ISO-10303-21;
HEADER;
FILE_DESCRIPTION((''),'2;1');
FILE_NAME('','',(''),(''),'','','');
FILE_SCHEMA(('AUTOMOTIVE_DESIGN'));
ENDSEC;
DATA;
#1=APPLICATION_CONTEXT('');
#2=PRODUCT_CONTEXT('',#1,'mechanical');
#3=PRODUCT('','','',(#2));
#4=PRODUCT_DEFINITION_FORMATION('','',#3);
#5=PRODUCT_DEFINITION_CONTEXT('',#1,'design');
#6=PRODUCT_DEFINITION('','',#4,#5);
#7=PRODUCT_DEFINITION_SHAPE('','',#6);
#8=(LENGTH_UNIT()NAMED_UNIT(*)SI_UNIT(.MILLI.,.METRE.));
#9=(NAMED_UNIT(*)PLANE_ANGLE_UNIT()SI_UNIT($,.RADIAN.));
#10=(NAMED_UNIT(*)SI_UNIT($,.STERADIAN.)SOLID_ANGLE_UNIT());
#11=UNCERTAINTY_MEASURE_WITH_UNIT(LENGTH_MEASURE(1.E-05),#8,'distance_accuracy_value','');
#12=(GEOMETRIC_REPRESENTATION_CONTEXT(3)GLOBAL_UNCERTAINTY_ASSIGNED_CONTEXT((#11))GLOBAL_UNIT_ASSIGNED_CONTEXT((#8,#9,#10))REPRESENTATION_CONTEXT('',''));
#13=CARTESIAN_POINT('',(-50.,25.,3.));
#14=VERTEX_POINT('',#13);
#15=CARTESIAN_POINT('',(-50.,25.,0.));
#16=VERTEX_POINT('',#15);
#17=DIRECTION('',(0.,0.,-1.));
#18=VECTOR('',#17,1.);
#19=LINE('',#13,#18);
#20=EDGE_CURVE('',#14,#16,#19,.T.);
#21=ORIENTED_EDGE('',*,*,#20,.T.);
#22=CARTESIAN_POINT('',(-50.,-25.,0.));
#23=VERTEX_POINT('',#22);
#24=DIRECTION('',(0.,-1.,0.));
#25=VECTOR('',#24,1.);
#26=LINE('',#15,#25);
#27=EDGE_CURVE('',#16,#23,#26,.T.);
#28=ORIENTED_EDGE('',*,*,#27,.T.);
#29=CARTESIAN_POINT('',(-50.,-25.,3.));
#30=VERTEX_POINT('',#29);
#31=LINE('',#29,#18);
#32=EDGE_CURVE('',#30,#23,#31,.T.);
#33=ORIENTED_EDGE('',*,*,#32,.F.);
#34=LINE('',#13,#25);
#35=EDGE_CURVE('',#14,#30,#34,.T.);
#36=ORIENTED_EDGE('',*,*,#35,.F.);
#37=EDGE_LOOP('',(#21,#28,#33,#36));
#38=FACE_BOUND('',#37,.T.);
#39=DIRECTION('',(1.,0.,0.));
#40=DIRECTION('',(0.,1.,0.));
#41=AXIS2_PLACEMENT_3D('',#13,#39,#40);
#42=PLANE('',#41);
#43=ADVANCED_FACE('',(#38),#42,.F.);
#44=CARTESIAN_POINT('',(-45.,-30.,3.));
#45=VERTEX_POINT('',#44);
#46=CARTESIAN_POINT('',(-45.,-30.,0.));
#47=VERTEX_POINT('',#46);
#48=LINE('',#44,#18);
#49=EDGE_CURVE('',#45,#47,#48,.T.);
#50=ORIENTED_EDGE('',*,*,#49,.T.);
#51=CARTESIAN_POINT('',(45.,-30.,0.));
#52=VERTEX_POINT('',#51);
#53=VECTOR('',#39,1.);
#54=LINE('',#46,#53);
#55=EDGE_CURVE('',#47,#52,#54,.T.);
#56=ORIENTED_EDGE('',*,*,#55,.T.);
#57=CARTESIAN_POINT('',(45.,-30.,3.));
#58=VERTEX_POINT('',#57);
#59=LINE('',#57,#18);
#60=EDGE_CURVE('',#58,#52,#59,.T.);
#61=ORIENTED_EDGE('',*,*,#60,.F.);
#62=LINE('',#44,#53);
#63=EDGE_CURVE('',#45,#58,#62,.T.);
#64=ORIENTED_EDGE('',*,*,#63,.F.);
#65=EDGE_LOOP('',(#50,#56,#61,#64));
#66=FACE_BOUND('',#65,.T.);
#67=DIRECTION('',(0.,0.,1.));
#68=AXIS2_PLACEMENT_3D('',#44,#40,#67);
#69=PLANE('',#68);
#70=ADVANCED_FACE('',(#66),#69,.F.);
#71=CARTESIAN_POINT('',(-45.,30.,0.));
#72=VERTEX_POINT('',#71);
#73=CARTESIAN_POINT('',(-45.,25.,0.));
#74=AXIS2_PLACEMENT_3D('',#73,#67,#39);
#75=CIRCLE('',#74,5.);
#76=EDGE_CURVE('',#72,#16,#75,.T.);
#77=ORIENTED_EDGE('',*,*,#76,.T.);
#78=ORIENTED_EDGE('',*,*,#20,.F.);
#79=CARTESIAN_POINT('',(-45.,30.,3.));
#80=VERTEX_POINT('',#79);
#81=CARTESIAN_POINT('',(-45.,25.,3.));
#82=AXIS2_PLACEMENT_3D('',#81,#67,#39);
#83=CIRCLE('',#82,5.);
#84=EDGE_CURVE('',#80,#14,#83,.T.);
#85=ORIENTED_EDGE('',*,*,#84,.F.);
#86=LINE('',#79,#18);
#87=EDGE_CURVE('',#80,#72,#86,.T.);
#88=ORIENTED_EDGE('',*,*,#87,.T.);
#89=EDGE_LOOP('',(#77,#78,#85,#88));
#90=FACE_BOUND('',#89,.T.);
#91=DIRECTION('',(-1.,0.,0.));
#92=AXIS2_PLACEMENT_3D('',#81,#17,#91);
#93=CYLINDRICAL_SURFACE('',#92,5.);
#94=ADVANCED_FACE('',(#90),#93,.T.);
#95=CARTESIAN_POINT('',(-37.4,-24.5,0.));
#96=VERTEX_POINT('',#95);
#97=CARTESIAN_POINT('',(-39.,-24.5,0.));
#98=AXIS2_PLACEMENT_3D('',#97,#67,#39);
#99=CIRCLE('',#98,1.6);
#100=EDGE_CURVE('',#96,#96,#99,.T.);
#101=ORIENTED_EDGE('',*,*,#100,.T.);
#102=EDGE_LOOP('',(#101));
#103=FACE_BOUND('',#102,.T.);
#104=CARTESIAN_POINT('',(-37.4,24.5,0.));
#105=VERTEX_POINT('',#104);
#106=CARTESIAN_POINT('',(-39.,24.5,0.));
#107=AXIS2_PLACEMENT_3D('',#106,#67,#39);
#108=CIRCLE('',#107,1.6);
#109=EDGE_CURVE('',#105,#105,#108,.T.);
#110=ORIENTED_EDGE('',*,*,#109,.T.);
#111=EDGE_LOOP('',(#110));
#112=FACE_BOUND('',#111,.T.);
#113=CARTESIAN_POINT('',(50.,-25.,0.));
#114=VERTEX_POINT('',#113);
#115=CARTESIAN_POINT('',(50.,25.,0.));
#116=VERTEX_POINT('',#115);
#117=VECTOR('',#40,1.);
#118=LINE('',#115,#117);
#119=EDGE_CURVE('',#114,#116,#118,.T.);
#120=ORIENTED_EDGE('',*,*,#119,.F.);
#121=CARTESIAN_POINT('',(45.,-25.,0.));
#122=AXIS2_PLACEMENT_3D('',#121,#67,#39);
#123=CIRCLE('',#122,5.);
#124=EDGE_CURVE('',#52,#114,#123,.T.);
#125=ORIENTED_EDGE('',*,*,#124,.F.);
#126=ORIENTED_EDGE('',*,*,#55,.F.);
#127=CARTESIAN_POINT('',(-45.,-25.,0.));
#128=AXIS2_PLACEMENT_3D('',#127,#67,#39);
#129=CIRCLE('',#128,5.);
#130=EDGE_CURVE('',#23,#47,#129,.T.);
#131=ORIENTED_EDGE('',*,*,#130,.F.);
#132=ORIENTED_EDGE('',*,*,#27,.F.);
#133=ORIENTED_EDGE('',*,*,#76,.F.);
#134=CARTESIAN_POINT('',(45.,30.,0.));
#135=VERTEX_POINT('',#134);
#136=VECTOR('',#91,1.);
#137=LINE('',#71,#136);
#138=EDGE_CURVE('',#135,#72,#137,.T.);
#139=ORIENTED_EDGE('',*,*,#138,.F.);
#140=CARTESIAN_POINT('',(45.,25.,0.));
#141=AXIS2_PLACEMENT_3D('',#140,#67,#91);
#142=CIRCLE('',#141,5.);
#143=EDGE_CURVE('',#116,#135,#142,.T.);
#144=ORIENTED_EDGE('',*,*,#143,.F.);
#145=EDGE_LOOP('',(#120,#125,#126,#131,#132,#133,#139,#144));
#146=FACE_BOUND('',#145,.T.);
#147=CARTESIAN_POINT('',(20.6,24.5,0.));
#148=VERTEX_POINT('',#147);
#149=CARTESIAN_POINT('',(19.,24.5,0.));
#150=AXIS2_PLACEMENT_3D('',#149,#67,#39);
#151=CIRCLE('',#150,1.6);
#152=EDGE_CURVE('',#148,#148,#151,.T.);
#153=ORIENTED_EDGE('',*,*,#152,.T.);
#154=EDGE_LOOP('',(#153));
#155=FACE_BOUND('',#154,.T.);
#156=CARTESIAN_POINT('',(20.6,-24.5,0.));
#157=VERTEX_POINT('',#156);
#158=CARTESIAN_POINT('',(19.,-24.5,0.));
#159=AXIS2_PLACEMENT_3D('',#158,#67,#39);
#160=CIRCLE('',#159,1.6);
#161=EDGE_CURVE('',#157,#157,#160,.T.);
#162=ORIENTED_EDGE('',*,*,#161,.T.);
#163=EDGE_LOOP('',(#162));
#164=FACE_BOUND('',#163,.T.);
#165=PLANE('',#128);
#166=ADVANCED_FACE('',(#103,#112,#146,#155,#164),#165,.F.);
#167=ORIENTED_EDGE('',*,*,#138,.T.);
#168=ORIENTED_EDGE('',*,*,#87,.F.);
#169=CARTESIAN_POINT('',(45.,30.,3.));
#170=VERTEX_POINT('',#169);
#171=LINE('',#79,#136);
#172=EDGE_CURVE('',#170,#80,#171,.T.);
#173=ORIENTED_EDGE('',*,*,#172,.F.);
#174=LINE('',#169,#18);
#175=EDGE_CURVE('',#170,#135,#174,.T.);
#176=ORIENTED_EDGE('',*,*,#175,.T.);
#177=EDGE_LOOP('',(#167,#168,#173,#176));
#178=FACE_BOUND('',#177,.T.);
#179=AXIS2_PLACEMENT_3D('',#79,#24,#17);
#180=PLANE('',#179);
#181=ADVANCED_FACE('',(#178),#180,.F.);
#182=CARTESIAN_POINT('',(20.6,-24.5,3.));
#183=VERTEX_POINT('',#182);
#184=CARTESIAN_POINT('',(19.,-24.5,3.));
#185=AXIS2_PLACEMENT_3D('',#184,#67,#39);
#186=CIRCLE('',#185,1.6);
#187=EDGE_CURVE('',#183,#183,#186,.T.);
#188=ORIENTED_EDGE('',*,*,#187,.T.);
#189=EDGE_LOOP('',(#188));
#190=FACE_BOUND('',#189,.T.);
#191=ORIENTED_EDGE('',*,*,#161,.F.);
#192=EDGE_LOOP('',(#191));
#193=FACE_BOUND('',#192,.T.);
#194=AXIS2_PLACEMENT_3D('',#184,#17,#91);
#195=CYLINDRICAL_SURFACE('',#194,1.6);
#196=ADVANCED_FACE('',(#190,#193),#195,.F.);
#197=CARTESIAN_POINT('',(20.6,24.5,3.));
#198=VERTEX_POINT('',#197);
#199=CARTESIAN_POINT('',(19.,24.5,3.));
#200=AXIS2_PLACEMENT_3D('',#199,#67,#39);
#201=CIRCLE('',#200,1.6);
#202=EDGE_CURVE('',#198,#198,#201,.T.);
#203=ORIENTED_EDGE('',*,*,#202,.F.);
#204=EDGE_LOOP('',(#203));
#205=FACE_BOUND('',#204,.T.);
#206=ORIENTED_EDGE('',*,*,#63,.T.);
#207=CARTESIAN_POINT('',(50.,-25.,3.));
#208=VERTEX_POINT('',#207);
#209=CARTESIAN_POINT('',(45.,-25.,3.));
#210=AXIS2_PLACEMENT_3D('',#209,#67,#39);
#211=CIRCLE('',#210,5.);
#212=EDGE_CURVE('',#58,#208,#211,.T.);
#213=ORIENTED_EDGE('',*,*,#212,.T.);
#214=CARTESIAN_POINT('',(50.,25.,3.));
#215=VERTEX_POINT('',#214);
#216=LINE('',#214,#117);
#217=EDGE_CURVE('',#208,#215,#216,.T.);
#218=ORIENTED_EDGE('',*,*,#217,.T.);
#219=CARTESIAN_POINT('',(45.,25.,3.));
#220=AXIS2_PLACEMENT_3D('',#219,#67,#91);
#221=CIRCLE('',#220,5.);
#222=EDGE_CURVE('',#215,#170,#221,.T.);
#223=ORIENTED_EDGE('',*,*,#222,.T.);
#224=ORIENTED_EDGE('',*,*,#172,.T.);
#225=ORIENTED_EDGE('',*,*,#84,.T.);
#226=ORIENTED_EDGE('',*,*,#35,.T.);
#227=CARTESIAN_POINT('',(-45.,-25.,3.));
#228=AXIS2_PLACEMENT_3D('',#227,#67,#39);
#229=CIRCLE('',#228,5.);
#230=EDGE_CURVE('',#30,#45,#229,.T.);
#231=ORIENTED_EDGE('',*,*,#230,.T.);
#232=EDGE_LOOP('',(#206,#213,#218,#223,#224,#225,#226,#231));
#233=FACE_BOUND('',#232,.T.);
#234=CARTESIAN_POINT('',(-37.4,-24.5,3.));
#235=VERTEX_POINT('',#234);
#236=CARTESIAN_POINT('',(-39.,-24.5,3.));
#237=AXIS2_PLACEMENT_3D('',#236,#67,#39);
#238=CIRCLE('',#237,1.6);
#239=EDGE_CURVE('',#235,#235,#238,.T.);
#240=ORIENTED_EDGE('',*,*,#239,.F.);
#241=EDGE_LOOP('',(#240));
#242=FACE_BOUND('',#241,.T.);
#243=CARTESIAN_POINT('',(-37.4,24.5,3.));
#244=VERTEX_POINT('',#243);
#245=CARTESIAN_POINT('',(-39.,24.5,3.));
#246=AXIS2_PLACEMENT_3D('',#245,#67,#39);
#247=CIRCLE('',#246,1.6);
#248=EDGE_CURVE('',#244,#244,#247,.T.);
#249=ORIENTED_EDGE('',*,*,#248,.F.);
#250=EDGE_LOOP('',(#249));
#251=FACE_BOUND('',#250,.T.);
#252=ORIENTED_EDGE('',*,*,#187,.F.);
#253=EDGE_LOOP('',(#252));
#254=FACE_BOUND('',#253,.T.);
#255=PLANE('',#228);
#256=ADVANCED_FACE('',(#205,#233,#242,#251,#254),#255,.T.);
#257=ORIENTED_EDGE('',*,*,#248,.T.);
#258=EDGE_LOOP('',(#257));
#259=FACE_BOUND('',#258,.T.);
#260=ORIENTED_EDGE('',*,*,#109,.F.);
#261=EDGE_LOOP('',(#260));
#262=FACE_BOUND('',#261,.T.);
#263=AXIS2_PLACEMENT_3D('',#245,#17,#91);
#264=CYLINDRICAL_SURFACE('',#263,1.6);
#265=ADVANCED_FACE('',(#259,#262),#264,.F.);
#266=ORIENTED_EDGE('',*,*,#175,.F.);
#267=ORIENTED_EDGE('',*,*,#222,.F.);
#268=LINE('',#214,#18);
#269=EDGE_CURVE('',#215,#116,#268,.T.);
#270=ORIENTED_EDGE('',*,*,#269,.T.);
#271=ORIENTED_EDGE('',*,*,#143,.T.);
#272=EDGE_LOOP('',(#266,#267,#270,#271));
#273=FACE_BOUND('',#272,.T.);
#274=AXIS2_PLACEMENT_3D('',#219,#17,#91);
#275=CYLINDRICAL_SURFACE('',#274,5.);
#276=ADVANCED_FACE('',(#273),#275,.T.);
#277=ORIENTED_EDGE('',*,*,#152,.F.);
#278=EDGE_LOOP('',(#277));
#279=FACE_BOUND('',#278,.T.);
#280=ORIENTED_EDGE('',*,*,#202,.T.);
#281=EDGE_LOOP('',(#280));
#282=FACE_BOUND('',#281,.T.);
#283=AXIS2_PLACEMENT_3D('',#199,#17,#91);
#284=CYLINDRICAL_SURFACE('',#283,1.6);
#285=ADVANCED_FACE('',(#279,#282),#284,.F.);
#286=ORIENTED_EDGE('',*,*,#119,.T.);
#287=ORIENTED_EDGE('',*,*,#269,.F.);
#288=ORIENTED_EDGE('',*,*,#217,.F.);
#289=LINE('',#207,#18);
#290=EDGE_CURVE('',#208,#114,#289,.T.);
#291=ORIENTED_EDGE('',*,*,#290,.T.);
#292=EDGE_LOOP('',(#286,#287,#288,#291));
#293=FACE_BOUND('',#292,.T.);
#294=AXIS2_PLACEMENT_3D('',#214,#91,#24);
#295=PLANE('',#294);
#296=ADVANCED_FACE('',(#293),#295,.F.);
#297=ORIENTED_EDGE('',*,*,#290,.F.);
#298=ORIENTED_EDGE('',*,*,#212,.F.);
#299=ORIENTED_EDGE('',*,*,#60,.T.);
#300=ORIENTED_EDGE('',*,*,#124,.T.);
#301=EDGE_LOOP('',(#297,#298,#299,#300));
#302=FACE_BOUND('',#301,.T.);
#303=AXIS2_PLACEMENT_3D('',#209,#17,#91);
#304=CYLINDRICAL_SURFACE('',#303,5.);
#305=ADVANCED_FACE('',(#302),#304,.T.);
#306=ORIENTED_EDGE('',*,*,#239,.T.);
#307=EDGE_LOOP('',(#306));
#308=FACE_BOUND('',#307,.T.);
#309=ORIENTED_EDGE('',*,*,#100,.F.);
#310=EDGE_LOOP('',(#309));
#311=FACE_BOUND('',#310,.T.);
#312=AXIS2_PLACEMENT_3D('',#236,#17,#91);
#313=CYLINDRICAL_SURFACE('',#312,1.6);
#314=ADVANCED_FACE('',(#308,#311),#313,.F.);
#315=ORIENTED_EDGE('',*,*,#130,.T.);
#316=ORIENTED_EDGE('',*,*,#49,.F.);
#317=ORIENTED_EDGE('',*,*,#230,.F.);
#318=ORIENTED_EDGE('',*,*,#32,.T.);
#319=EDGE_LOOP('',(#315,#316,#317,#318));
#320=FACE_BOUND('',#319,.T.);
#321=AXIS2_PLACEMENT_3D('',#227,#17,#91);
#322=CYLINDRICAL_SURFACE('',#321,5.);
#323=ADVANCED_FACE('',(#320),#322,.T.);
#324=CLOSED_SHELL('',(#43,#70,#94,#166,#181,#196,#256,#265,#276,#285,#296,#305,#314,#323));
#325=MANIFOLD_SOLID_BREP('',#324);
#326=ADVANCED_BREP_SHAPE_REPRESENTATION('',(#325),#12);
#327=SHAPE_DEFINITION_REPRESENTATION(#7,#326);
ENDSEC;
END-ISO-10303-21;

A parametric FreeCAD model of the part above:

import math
import FreeCAD as App
import Part
import Sketcher

V = App.Vector
Q = App.Units.Quantity

doc = App.newDocument("Part")
body = doc.addObject("PartDesign::Body", "Body")

sketch1 = body.newObject("Sketcher::SketchObject", "Sketch")
sketch1.AttachmentSupport = (doc.getObject("XY_Plane"), [""])
sketch1.MapMode = "FlatFace"
sketch1.addGeometry([
    Part.LineSegment(V(45, 30, 0), V(-45, 30, 0)),
    Part.ArcOfCircle(Part.Circle(V(-45, 25, 0), V(0, 0, 1), 5), math.radians(90), math.radians(180)),
    Part.LineSegment(V(-50, 25, 0), V(-50, -25, 0)),
    Part.ArcOfCircle(Part.Circle(V(-45, -25, 0), V(0, 0, 1), 5), math.radians(180), math.radians(270)),
    Part.LineSegment(V(-45, -30, 0), V(45, -30, 0)),
    Part.ArcOfCircle(Part.Circle(V(45, -25, 0), V(0, 0, 1), 5), math.radians(-90), math.radians(0)),
    Part.LineSegment(V(50, -25, 0), V(50, 25, 0)),
    Part.ArcOfCircle(Part.Circle(V(45, 25, 0), V(0, 0, 1), 5), math.radians(0), math.radians(90)),
    Part.Circle(V(19, -24.5, 0), V(0, 0, 1), 1.6),
    Part.Circle(V(-39, -24.5, 0), V(0, 0, 1), 1.6),
    Part.Circle(V(19, 24.5, 0), V(0, 0, 1), 1.6),
    Part.Circle(V(-39, 24.5, 0), V(0, 0, 1), 1.6),
], False)
sketch1.addConstraint([
    Sketcher.Constraint("Tangent", 0, 2, 1, 1),
    Sketcher.Constraint("Tangent", 1, 2, 2, 1),
    Sketcher.Constraint("Tangent", 2, 2, 3, 1),
    Sketcher.Constraint("Tangent", 3, 2, 4, 1),
    Sketcher.Constraint("Tangent", 4, 2, 5, 1),
    Sketcher.Constraint("Tangent", 5, 2, 6, 1),
    Sketcher.Constraint("Tangent", 6, 2, 7, 1),
    Sketcher.Constraint("Tangent", 7, 2, 0, 1),
    Sketcher.Constraint("Horizontal", 0),
    Sketcher.Constraint("Vertical", 2),
    Sketcher.Constraint("Horizontal", 4),
    Sketcher.Constraint("Vertical", 6),
    Sketcher.Constraint("Equal", 1, 3),
    Sketcher.Constraint("Equal", 3, 5),
    Sketcher.Constraint("Equal", 5, 7),
    Sketcher.Constraint("Equal", 8, 9),
    Sketcher.Constraint("Equal", 9, 10),
    Sketcher.Constraint("Equal", 10, 11),
    Sketcher.Constraint("Symmetric", 1, 3, 5, 3, -1, 1),
    Sketcher.Constraint("Symmetric", 8, 3, 10, 3, -1),
    Sketcher.Constraint("Symmetric", 9, 3, 11, 3, -1),
    Sketcher.Constraint("Horizontal", 8, 3, 9, 3),
    Sketcher.Constraint("Radius", 1, Q("5 mm")),
    Sketcher.Constraint("Diameter", 8, Q("3.2 mm")),
    Sketcher.Constraint("DistanceX", 0, 2, 0, 1, Q("90 mm")),
    Sketcher.Constraint("DistanceY", 2, 2, 2, 1, Q("50 mm")),
    Sketcher.Constraint("DistanceX", -1, 1, 8, 3, Q("19 mm")),
    Sketcher.Constraint("DistanceX", 9, 3, -1, 1, Q("39 mm")),
    Sketcher.Constraint("DistanceY", 8, 3, 10, 3, Q("49 mm")),
])
pad1 = body.newObject("PartDesign::Pad", "Pad")
pad1.Profile = sketch1
pad1.Length = 3

doc.recompute()
